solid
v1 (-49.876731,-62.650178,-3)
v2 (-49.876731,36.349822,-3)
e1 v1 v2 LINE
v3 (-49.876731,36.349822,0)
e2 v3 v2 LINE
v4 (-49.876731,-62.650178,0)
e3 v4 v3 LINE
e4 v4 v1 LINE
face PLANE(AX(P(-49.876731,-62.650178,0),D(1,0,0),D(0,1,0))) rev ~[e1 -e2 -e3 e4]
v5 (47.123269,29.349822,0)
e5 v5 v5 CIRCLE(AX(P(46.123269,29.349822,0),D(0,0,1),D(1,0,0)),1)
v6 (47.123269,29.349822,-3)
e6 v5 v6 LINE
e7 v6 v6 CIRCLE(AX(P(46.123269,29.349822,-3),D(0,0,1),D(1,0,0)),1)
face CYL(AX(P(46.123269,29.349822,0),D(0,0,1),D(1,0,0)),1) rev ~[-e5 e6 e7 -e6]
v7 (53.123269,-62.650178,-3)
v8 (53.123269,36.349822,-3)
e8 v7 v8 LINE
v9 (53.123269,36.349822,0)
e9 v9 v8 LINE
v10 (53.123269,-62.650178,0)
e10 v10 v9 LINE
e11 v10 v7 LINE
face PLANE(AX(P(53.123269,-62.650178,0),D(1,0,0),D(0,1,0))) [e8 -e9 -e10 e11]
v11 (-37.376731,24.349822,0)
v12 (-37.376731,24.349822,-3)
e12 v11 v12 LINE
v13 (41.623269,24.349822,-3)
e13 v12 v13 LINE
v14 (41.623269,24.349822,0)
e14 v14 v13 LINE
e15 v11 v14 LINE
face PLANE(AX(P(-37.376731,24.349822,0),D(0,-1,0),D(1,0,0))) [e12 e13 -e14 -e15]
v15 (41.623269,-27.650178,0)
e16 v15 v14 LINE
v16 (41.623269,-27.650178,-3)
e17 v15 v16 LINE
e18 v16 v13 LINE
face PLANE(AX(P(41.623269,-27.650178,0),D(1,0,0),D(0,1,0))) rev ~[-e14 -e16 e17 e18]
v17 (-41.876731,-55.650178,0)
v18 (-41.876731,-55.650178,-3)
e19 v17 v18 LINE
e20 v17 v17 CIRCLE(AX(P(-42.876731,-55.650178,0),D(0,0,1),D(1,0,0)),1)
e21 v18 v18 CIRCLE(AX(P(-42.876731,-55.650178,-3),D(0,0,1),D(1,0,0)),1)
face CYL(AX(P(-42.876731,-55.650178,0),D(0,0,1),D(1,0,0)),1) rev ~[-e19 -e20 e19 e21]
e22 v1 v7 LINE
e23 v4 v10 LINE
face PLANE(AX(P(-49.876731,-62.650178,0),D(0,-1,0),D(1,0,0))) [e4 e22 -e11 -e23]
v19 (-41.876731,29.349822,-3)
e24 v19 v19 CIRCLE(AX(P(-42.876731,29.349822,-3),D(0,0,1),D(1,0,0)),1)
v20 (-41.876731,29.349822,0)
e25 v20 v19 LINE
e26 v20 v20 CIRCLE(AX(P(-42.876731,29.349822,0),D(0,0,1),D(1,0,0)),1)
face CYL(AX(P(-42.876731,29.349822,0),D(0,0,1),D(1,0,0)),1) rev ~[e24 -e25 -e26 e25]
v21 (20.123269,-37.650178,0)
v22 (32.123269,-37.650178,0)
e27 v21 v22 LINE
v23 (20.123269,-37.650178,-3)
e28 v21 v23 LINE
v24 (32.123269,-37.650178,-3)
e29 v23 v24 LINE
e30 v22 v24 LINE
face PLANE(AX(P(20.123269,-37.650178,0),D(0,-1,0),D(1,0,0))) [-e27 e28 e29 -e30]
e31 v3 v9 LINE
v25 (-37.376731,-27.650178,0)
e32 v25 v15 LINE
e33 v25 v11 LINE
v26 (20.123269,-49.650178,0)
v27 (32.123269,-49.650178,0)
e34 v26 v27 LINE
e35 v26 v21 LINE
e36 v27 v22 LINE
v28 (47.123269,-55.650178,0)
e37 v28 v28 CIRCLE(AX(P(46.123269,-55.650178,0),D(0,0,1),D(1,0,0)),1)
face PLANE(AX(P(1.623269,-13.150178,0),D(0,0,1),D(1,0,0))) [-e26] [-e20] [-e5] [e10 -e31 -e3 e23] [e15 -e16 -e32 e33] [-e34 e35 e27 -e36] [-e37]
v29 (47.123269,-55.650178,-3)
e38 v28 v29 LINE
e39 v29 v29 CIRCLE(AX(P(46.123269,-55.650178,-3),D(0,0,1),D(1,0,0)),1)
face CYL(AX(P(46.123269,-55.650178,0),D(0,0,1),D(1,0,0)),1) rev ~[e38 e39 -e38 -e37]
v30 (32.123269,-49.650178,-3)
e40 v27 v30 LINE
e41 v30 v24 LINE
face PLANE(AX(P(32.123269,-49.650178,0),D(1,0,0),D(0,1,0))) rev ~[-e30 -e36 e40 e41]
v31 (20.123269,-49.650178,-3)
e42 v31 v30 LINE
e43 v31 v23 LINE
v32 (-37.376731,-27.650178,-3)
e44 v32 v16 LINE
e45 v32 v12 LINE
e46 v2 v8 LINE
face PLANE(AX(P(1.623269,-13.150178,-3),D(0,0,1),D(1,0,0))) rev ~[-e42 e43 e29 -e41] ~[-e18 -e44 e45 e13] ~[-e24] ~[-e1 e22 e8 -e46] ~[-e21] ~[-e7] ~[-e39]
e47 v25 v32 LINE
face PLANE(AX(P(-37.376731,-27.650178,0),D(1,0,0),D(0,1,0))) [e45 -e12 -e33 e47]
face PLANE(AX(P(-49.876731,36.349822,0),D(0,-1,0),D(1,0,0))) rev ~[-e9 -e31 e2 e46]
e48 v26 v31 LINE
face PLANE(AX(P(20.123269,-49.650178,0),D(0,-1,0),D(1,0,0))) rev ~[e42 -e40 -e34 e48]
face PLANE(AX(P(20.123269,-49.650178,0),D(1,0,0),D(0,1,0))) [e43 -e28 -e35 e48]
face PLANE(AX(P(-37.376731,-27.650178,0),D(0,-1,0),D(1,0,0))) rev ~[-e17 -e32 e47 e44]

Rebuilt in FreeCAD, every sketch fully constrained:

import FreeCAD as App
import Part
import Sketcher
from FreeCAD import Vector
Q = App.Units.Quantity

doc = App.newDocument("Part")
body = doc.addObject("PartDesign::Body", "Body")

sketch1 = body.newObject("Sketcher::SketchObject", "Sketch")
sketch1.AttachmentSupport = (doc.getObject("XY_Plane"), [""])
sketch1.MapMode = "FlatFace"
sketch1.addGeometry([
    Part.LineSegment(Vector(-49.876731, 36.349822, 0), Vector(-49.876731, -62.650178, 0)),
    Part.LineSegment(Vector(-49.876731, -62.650178, 0), Vector(53.123269, -62.650178, 0)),
    Part.LineSegment(Vector(53.123269, -62.650178, 0), Vector(53.123269, 36.349822, 0)),
    Part.LineSegment(Vector(53.123269, 36.349822, 0), Vector(-49.876731, 36.349822, 0)),
], False)
sketch1.addConstraint([
    Sketcher.Constraint("Coincident", 0, 2, 1, 1),
    Sketcher.Constraint("Coincident", 1, 2, 2, 1),
    Sketcher.Constraint("Coincident", 2, 2, 3, 1),
    Sketcher.Constraint("Coincident", 3, 2, 0, 1),
    Sketcher.Constraint("Vertical", 0),
    Sketcher.Constraint("Horizontal", 1),
    Sketcher.Constraint("Vertical", 2),
    Sketcher.Constraint("Horizontal", 3),
    Sketcher.Constraint("DistanceX", 1, 1, 1, 2, Q("103 mm")),
    Sketcher.Constraint("DistanceY", 0, 2, 0, 1, Q("99 mm")),
    Sketcher.Constraint("DistanceX", 0, 2, -1, 1, Q("49.876731 mm")),
    Sketcher.Constraint("DistanceY", 0, 2, -1, 1, Q("62.650178 mm")),
])
pad1 = body.newObject("PartDesign::Pad", "Pad")
pad1.Profile = sketch1
pad1.Length = 3
pad1.Reversed = True

sketch2 = body.newObject("Sketcher::SketchObject", "Sketch001")
sketch2.AttachmentSupport = (doc.getObject("XY_Plane"), [""])
sketch2.MapMode = "FlatFace"
sketch2.addGeometry([
    Part.LineSegment(Vector(-37.376731, 24.349822, 0), Vector(-37.376731, -27.650178, 0)),
    Part.LineSegment(Vector(-37.376731, -27.650178, 0), Vector(41.623269, -27.650178, 0)),
    Part.LineSegment(Vector(41.623269, -27.650178, 0), Vector(41.623269, 24.349822, 0)),
    Part.LineSegment(Vector(41.623269, 24.349822, 0), Vector(-37.376731, 24.349822, 0)),
], False)
sketch2.addConstraint([
    Sketcher.Constraint("Coincident", 0, 2, 1, 1),
    Sketcher.Constraint("Coincident", 1, 2, 2, 1),
    Sketcher.Constraint("Coincident", 2, 2, 3, 1),
    Sketcher.Constraint("Coincident", 3, 2, 0, 1),
    Sketcher.Constraint("Vertical", 0),
    Sketcher.Constraint("Horizontal", 1),
    Sketcher.Constraint("Vertical", 2),
    Sketcher.Constraint("Horizontal", 3),
    Sketcher.Constraint("DistanceX", 1, 1, 1, 2, Q("79 mm")),
    Sketcher.Constraint("DistanceY", 0, 2, 0, 1, Q("52 mm")),
    Sketcher.Constraint("DistanceX", 0, 2, -1, 1, Q("37.376731 mm")),
    Sketcher.Constraint("DistanceY", 0, 2, -1, 1, Q("27.650178 mm")),
])
pocket1 = body.newObject("PartDesign::Pocket", "Pocket")
pocket1.Profile = sketch2
pocket1.Type = "ThroughAll"

sketch3 = body.newObject("Sketcher::SketchObject", "Sketch002")
sketch3.AttachmentSupport = (doc.getObject("XY_Plane"), [""])
sketch3.MapMode = "FlatFace"
sketch3.addGeometry([
    Part.LineSegment(Vector(20.123269, -37.650178, 0), Vector(20.123269, -49.650178, 0)),
    Part.LineSegment(Vector(20.123269, -49.650178, 0), Vector(32.123269, -49.650178, 0)),
    Part.LineSegment(Vector(32.123269, -49.650178, 0), Vector(32.123269, -37.650178, 0)),
    Part.LineSegment(Vector(32.123269, -37.650178, 0), Vector(20.123269, -37.650178, 0)),
], False)
sketch3.addConstraint([
    Sketcher.Constraint("Coincident", 0, 2, 1, 1),
    Sketcher.Constraint("Coincident", 1, 2, 2, 1),
    Sketcher.Constraint("Coincident", 2, 2, 3, 1),
    Sketcher.Constraint("Coincident", 3, 2, 0, 1),
    Sketcher.Constraint("Vertical", 0),
    Sketcher.Constraint("Horizontal", 1),
    Sketcher.Constraint("Vertical", 2),
    Sketcher.Constraint("Horizontal", 3),
    Sketcher.Constraint("Equal", 3, 0),
    Sketcher.Constraint("DistanceX", 1, 1, 1, 2, Q("12 mm")),
    Sketcher.Constraint("DistanceX", -1, 1, 0, 2, Q("20.123269 mm")),
    Sketcher.Constraint("DistanceY", 0, 2, -1, 1, Q("49.650178 mm")),
])
pocket2 = body.newObject("PartDesign::Pocket", "Pocket001")
pocket2.Profile = sketch3
pocket2.Type = "ThroughAll"

sketch4 = body.newObject("Sketcher::SketchObject", "Sketch003")
sketch4.AttachmentSupport = (doc.getObject("XY_Plane"), [""])
sketch4.MapMode = "FlatFace"
sketch4.addGeometry([
    Part.Circle(Vector(-42.876731, 29.349822, 0), Vector(0, 0, 1), 1),
    Part.Circle(Vector(-134.126731, 29.349822, 0), Vector(0, 0, 1), 1),
    Part.Circle(Vector(46.123269, 29.349822, 0), Vector(0, 0, 1), 1),
    Part.Circle(Vector(-42.876731, -55.650178, 0), Vector(0, 0, 1), 1),
    Part.Circle(Vector(46.123269, -55.650178, 0), Vector(0, 0, 1), 1),
], False)
sketch4.addConstraint([
    Sketcher.Constraint("Equal", 0, 1),
    Sketcher.Constraint("Equal", 1, 2),
    Sketcher.Constraint("Equal", 2, 3),
    Sketcher.Constraint("Equal", 3, 4),
    Sketcher.Constraint("Horizontal", 0, 3, 1, 3),
    Sketcher.Constraint("Horizontal", 1, 3, 2, 3),
    Sketcher.Constraint("Horizontal", 3, 3, 4, 3),
    Sketcher.Constraint("Vertical", 0, 3, 3, 3),
    Sketcher.Constraint("Vertical", 2, 3, 4, 3),
    Sketcher.Constraint("Diameter", 0, Q("2 mm")),
    Sketcher.Constraint("DistanceX", 0, 3, 2, 3, Q("89 mm")),
    Sketcher.Constraint("DistanceY", 3, 3, 0, 3, Q("85 mm")),
    Sketcher.Constraint("DistanceX", 1, 3, 0, 3, Q("91.25 mm")),
    Sketcher.Constraint("DistanceX", 0, 3, -1, 1, Q("42.876731 mm")),
    Sketcher.Constraint("DistanceY", -1, 1, 0, 3, Q("29.349822 mm")),
])
pocket3 = body.newObject("PartDesign::Pocket", "Pocket002")
pocket3.Profile = sketch4
pocket3.Type = "ThroughAll"

doc.recompute()
